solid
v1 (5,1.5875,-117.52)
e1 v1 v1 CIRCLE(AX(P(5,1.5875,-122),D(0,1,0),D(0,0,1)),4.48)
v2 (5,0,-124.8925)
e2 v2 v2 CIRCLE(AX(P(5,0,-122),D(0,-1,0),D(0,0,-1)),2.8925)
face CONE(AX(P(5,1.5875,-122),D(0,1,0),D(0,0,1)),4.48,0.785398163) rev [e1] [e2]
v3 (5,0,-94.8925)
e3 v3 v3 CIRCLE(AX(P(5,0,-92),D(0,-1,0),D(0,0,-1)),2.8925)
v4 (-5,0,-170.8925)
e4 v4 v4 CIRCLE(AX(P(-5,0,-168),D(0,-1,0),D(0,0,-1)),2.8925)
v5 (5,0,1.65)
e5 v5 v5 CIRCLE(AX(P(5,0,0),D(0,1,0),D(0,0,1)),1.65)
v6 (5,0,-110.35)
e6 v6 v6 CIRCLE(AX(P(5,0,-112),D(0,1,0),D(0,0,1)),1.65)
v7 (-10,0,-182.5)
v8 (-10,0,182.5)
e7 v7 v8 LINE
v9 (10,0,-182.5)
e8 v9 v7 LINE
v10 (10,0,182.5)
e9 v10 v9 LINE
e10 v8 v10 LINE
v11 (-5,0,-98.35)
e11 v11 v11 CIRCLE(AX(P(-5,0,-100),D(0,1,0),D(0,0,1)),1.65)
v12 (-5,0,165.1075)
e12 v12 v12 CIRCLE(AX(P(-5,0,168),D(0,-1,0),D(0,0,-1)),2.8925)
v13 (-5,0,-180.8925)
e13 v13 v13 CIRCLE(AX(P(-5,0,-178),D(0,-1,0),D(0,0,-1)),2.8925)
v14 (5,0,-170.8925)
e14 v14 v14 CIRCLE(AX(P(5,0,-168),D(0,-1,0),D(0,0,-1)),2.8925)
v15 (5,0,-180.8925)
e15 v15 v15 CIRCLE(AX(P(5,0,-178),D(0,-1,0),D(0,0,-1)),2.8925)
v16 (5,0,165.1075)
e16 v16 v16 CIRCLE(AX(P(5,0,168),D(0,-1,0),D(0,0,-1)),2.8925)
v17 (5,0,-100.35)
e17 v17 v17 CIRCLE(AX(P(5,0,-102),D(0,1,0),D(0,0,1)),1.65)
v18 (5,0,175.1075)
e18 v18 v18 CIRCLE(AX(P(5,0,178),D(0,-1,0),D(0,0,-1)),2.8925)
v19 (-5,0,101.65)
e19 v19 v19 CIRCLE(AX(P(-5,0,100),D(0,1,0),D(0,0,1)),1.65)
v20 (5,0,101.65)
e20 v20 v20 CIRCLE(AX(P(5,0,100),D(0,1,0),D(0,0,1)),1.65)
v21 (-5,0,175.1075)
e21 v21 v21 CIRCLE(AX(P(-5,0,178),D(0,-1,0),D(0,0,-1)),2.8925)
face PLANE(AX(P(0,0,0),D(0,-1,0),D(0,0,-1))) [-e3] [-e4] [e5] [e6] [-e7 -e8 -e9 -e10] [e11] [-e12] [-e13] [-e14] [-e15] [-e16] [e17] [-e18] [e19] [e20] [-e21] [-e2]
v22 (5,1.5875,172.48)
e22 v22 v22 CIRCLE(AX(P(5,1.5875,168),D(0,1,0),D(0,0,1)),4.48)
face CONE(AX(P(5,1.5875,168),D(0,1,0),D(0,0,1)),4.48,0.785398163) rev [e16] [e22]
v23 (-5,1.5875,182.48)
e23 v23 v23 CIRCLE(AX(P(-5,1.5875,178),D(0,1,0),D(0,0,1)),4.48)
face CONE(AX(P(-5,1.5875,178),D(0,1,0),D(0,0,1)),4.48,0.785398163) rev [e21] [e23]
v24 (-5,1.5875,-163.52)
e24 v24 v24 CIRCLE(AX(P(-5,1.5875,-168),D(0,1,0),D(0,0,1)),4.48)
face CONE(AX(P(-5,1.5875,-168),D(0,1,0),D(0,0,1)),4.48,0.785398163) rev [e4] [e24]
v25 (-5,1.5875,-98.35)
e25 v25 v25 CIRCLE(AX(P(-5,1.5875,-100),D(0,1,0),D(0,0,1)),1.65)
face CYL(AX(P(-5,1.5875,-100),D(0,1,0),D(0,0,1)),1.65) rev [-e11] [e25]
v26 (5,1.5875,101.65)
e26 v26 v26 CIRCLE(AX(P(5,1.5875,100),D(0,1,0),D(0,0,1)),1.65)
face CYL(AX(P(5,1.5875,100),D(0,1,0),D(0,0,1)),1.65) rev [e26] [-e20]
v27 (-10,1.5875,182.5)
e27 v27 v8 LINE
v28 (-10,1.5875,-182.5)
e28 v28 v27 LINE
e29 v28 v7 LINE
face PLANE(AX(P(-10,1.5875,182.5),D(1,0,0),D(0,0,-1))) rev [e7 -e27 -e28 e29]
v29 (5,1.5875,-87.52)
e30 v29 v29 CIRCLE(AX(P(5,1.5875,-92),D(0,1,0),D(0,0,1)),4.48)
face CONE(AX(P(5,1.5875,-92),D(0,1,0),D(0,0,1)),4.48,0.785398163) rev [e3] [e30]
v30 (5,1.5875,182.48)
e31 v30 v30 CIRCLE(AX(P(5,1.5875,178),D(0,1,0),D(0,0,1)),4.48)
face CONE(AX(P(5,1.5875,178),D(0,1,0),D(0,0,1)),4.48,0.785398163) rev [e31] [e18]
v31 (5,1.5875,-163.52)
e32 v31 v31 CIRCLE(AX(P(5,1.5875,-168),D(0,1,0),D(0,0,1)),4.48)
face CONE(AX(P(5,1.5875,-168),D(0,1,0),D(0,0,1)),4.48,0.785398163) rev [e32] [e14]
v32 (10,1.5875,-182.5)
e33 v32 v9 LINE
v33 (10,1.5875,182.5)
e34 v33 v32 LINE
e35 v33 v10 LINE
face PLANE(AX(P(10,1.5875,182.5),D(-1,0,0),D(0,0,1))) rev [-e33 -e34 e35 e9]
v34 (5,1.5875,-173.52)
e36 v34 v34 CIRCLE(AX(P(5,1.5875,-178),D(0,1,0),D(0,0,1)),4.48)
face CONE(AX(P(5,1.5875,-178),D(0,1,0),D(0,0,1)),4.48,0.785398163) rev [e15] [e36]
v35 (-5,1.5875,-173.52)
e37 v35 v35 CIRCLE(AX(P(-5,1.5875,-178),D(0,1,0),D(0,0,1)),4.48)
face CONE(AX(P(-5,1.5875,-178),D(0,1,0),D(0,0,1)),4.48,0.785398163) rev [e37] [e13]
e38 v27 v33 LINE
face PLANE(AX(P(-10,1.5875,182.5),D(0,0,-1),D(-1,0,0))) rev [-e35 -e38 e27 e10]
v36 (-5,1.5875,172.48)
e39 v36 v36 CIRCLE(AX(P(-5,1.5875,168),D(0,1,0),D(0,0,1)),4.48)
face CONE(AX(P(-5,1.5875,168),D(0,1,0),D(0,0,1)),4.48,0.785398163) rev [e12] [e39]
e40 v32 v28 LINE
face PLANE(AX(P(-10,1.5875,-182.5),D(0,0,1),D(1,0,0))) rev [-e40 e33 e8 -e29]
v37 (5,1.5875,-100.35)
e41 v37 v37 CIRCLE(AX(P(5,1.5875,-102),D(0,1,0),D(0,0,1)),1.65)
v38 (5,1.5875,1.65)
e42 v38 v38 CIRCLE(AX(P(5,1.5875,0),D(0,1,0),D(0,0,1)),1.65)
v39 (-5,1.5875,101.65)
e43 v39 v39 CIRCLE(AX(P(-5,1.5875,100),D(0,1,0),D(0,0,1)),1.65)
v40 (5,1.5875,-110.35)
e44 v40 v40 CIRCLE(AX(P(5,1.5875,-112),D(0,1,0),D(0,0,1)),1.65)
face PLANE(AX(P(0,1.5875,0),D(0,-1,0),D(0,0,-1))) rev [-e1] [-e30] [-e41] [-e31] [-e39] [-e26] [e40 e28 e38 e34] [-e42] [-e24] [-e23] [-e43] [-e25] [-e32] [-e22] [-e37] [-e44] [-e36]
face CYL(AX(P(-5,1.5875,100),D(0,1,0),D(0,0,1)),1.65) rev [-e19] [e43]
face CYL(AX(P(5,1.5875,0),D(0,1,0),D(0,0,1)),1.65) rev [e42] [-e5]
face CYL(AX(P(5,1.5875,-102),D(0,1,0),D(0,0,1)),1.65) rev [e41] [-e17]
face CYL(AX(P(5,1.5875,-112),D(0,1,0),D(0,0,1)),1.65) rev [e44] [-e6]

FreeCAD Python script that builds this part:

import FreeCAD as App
import Part
import Sketcher
from FreeCAD import Vector
Q = App.Units.Quantity

doc = App.newDocument("Part")
body = doc.addObject("PartDesign::Body", "Body")

# Sketch on XZ plane
sketch1 = body.newObject("Sketcher::SketchObject", "Sketch")
sketch1.AttachmentSupport = (doc.getObject("XZ_Plane"), [""])
sketch1.MapMode = "FlatFace"
sketch1.addGeometry([
    Part.LineSegment(Vector(-10, -182, 0), Vector(-10, 182, 0)),
    Part.LineSegment(Vector(-10, 182, 0), Vector(10, 182, 0)),
    Part.LineSegment(Vector(10, 182, 0), Vector(10, -182, 0)),
    Part.LineSegment(Vector(10, -182, 0), Vector(-10, -182, 0)),
], False)
sketch1.addConstraint([
    Sketcher.Constraint("Coincident", 0, 2, 1, 1),
    Sketcher.Constraint("Coincident", 1, 2, 2, 1),
    Sketcher.Constraint("Coincident", 2, 2, 3, 1),
    Sketcher.Constraint("Coincident", 3, 2, 0, 1),
    Sketcher.Constraint("Vertical", 0),
    Sketcher.Constraint("Horizontal", 1),
    Sketcher.Constraint("Vertical", 2),
    Sketcher.Constraint("Horizontal", 3),
    Sketcher.Constraint("Symmetric", 0, 2, 2, 2, -1, 1),
    Sketcher.Constraint("DistanceX", 1, 1, 1, 2, 20.0),
    Sketcher.Constraint("DistanceY", 0, 1, 0, 2, 365.0),
])
pad1 = body.newObject("PartDesign::Pad", "Pad")
pad1.Profile = sketch1
pad1.Length = 1.5875
pad1.Reversed = True

# Sketch on YZ plane
sketch2 = body.newObject("Sketcher::SketchObject", "Sketch001")
sketch2.AttachmentSupport = (doc.getObject("YZ_Plane"), [""])
sketch2.MapMode = "FlatFace"
sketch2.AttachmentOffset = App.Placement(Vector(0, 0, 5), App.Rotation())
sketch2.addGeometry([
    Part.LineSegment(Vector(0, 168, 0), Vector(1.6, 168, 0)),  # 0
    Part.LineSegment(Vector(1.6, 168, 0), Vector(1.6, 172.5, 0)),  # 1
    Part.LineSegment(Vector(1.6, 172.5, 0), Vector(-0.6, 170.2, 0)),  # 2
    Part.LineSegment(Vector(-0.6, 170.2, 0), Vector(0, 170.2, 0)),  # 3
    Part.LineSegment(Vector(0, 170.2, 0), Vector(0, 168, 0)),  # 4
], False)
sketch2.addGeometry(Part.LineSegment(Vector(1.6, 168, 0), Vector(-0.6, 168, 0)), True)  # axis
sketch2.addConstraint([
    Sketcher.Constraint("Coincident", 0, 2, 1, 1),
    Sketcher.Constraint("Coincident", 1, 2, 2, 1),
    Sketcher.Constraint("Coincident", 2, 2, 3, 1),
    Sketcher.Constraint("Coincident", 3, 2, 4, 1),
    Sketcher.Constraint("Coincident", 4, 2, 0, 1),
    Sketcher.Constraint("Horizontal", 0),
    Sketcher.Constraint("Vertical", 1),
    Sketcher.Constraint("Horizontal", 3),
    Sketcher.Constraint("Vertical", 4),
    Sketcher.Constraint("Horizontal", 5),
    Sketcher.Constraint("Coincident", 5, 1, 0, 2),
    Sketcher.Constraint("PointOnObject", 3, 2, -2),
    Sketcher.Constraint("Vertical", 2, 2, 5, 2),
    Sketcher.Constraint("Angle", 2, Q("-135 deg")),
    Sketcher.Constraint("DistanceY", -1, 1, 0, 2, 168.0),
    Sketcher.Constraint("DistanceX", 5, 2, 5, 1, 2.23),
    Sketcher.Constraint("DistanceY", 1, 1, 1, 2, 4.48),
    Sketcher.Constraint("DistanceX", 0, 1, 0, 2, 1.5875),
])
groove = body.newObject("PartDesign::Groove", "Groove")
groove.Profile = sketch2
groove.ReferenceAxis = (sketch2, ["Axis0"])
groove.Angle = 360
doc.recompute()

datumline = body.newObject("PartDesign::Line", "DatumLine")
datumline.Placement = App.Placement(Vector(0, 0, 0), App.Rotation(Vector(0, 0, 1), Vector(-0.707106781, 0, 0.707106781)))
linearpattern = body.newObject("PartDesign::LinearPattern", "LinearPattern")
linearpattern.Originals = [groove]
linearpattern.Direction = (datumline, [""])
linearpattern.Mode = "offset"
linearpattern.Offset = 14.142136
linearpattern.Occurrences = 2
body.Tip = linearpattern
doc.recompute()

linearpattern2 = body.newObject("PartDesign::LinearPattern", "LinearPattern001")
linearpattern2.Originals = [groove]
linearpattern2.Direction = (doc.getObject("X_Axis"), [""])
linearpattern2.Mode = "offset"
linearpattern2.Offset = 10
linearpattern2.Occurrences = 2
linearpattern2.Reversed = True
body.Tip = linearpattern2
doc.recompute()

linearpattern3 = body.newObject("PartDesign::LinearPattern", "LinearPattern002")
linearpattern3.Originals = [groove]
linearpattern3.Direction = (doc.getObject("Z_Axis"), [""])
linearpattern3.Mode = "offset"
linearpattern3.Offset = 10
linearpattern3.Occurrences = 2
body.Tip = linearpattern3
doc.recompute()

linearpattern4 = body.newObject("PartDesign::LinearPattern", "LinearPattern003")
linearpattern4.Originals = [groove]
linearpattern4.Direction = (doc.getObject("Z_Axis"), [""])
linearpattern4.Mode = "offset"
linearpattern4.Offset = 346
linearpattern4.Occurrences = 2
linearpattern4.Reversed = True
body.Tip = linearpattern4
doc.recompute()

datumline2 = body.newObject("PartDesign::Line", "DatumLine001")
datumline2.Placement = App.Placement(Vector(0, 0, 0), App.Rotation(Vector(0, 0, 1), Vector(-0.029748732, 0, -0.999557409)))
linearpattern5 = body.newObject("PartDesign::LinearPattern", "LinearPattern004")
linearpattern5.Originals = [groove]
linearpattern5.Direction = (datumline2, [""])
linearpattern5.Mode = "offset"
linearpattern5.Offset = 336.148777
linearpattern5.Occurrences = 2
body.Tip = linearpattern5
doc.recompute()

datumline3 = body.newObject("PartDesign::Line", "DatumLine002")
datumline3.Placement = App.Placement(Vector(0, 0, 0), App.Rotation(Vector(0, 0, 1), Vector(-0.028889671, 0, -0.999582606)))
linearpattern6 = body.newObject("PartDesign::LinearPattern", "LinearPattern005")
linearpattern6.Originals = [groove]
linearpattern6.Direction = (datumline3, [""])
linearpattern6.Mode = "offset"
linearpattern6.Offset = 346.144479
linearpattern6.Occurrences = 2
body.Tip = linearpattern6
doc.recompute()

linearpattern7 = body.newObject("PartDesign::LinearPattern", "LinearPattern006")
linearpattern7.Originals = [groove]
linearpattern7.Direction = (doc.getObject("Z_Axis"), [""])
linearpattern7.Mode = "offset"
linearpattern7.Offset = 336
linearpattern7.Occurrences = 2
linearpattern7.Reversed = True
body.Tip = linearpattern7
doc.recompute()

linearpattern8 = body.newObject("PartDesign::LinearPattern", "LinearPattern007")
linearpattern8.Originals = [groove]
linearpattern8.Direction = (doc.getObject("Z_Axis"), [""])
linearpattern8.Mode = "offset"
linearpattern8.Offset = 260
linearpattern8.Occurrences = 2
linearpattern8.Reversed = True
body.Tip = linearpattern8
doc.recompute()

linearpattern9 = body.newObject("PartDesign::LinearPattern", "LinearPattern008")
linearpattern9.Originals = [groove]
linearpattern9.Direction = (doc.getObject("Z_Axis"), [""])
linearpattern9.Mode = "offset"
linearpattern9.Offset = 290
linearpattern9.Occurrences = 2
linearpattern9.Reversed = True
body.Tip = linearpattern9

# Sketch on XZ plane
sketch3 = body.newObject("Sketcher::SketchObject", "Sketch002")
sketch3.AttachmentSupport = (doc.getObject("XZ_Plane"), [""])
sketch3.MapMode = "FlatFace"
sketch3.AttachmentOffset = App.Placement(Vector(0, 0, -1.5875), App.Rotation())
sketch3.addGeometry([
    Part.Circle(Vector(-5, 100, 0), Vector(0, 0, 1), 1.6),  # 0
    Part.Circle(Vector(-5, -100, 0), Vector(0, 0, 1), 1.6),  # 1
    Part.Circle(Vector(5, 100, 0), Vector(0, 0, 1), 1.6),  # 2
    Part.Circle(Vector(5, 0, 0), Vector(0, 0, 1), 1.6),  # 3
    Part.Circle(Vector(5, -102, 0), Vector(0, 0, 1), 1.6),  # 4
    Part.Circle(Vector(5, -112, 0), Vector(0, 0, 1), 1.6),  # 5
], False)
sketch3.addConstraint([
    Sketcher.Constraint("Equal", 0, 1),
    Sketcher.Constraint("Equal", 1, 2),
    Sketcher.Constraint("Equal", 2, 3),
    Sketcher.Constraint("Equal", 3, 4),
    Sketcher.Constraint("Equal", 4, 5),
    Sketcher.Constraint("Symmetric", 1, 3, 2, 3, -1, 1),
    Sketcher.Constraint("Symmetric", 0, 3, 2, 3, -2),
    Sketcher.Constraint("PointOnObject", 3, 3, -1),
    Sketcher.Constraint("Vertical", 2, 3, 3, 3),
    Sketcher.Constraint("Vertical", 3, 3, 4, 3),
    Sketcher.Constraint("Vertical", 4, 3, 5, 3),
    Sketcher.Constraint("Diameter", 0, 3.3),
    Sketcher.Constraint("DistanceX", 0, 3, -1, 1, 5.0),
    Sketcher.Constraint("DistanceY", -1, 1, 0, 3, 100.0),
    Sketcher.Constraint("DistanceY", 4, 3, -1, 1, 102.0),
    Sketcher.Constraint("DistanceY", 5, 3, -1, 1, 112.0),
])
doc.recompute()
hole = body.newObject("PartDesign::Hole", "Hole")
hole.Profile = sketch3
hole.ThreadType = "None"
hole.Diameter = 3.3
hole.DepthType = "ThroughAll"
hole.Reversed = True

doc.recompute()
